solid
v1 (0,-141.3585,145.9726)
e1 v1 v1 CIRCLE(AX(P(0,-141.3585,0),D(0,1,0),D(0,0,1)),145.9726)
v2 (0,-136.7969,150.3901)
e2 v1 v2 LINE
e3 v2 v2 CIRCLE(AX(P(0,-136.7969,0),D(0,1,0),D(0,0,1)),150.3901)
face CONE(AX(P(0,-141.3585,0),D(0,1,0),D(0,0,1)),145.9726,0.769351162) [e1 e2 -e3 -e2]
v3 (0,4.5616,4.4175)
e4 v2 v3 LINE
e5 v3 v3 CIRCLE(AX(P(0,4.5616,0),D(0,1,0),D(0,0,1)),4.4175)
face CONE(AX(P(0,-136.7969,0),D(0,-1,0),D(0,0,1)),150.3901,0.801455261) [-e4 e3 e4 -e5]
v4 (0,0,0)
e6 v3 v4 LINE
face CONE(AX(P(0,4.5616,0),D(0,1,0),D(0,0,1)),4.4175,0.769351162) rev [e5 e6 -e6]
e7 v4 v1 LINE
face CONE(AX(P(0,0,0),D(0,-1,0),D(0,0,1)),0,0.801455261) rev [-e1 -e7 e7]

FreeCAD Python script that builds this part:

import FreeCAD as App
import Part
import Sketcher
Q = App.Units.Quantity


def add_polygon(sketch, points):
    """Adds a closed chain of lines whose ends are joined by coincident constraints."""
    first, n = sketch.GeometryCount, len(points)
    for a, b in zip(points, points[1:] + points[:1]):
        sketch.addGeometry(Part.LineSegment(App.Vector(*a, 0), App.Vector(*b, 0)), False)
    for i in range(n):
        sketch.addConstraint(Sketcher.Constraint("Coincident", first + i, 2, first + (i + 1) % n, 1))

doc = App.newDocument("Part")
body = doc.addObject("PartDesign::Body", "Body")

sketch1 = body.newObject("Sketcher::SketchObject", "Sketch")
sketch1.AttachmentSupport = (doc.getObject("YZ_Plane"), [""])
sketch1.MapMode = "FlatFace"
add_polygon(sketch1, [(-136.7969, 150.3901), (-141.3585, 145.9726), (0, 0), (4.5616, 4.4175)])
sketch1.addConstraint([
    Sketcher.Constraint("Coincident", 1, 2, -1, 1),
    Sketcher.Constraint("Distance", 1, Q("8 in")),
    Sketcher.Constraint("Distance", 3, Q("8 in")),
    Sketcher.Constraint("Distance", 0, Q("0.25 in")),
    Sketcher.Constraint("Distance", 2, Q("0.25 in")),
    Sketcher.Constraint("DistanceX", 0, 2, -1, 1, Q("5.5653 in")),
    Sketcher.Constraint("DistanceX", -1, 1, 2, 2, Q("0.1796 in")),
])
revolution = body.newObject("PartDesign::Revolution", "Revolution")
revolution.Profile = sketch1
revolution.ReferenceAxis = (sketch1, ["H_Axis"])
revolution.Angle = 360

doc.recompute()
